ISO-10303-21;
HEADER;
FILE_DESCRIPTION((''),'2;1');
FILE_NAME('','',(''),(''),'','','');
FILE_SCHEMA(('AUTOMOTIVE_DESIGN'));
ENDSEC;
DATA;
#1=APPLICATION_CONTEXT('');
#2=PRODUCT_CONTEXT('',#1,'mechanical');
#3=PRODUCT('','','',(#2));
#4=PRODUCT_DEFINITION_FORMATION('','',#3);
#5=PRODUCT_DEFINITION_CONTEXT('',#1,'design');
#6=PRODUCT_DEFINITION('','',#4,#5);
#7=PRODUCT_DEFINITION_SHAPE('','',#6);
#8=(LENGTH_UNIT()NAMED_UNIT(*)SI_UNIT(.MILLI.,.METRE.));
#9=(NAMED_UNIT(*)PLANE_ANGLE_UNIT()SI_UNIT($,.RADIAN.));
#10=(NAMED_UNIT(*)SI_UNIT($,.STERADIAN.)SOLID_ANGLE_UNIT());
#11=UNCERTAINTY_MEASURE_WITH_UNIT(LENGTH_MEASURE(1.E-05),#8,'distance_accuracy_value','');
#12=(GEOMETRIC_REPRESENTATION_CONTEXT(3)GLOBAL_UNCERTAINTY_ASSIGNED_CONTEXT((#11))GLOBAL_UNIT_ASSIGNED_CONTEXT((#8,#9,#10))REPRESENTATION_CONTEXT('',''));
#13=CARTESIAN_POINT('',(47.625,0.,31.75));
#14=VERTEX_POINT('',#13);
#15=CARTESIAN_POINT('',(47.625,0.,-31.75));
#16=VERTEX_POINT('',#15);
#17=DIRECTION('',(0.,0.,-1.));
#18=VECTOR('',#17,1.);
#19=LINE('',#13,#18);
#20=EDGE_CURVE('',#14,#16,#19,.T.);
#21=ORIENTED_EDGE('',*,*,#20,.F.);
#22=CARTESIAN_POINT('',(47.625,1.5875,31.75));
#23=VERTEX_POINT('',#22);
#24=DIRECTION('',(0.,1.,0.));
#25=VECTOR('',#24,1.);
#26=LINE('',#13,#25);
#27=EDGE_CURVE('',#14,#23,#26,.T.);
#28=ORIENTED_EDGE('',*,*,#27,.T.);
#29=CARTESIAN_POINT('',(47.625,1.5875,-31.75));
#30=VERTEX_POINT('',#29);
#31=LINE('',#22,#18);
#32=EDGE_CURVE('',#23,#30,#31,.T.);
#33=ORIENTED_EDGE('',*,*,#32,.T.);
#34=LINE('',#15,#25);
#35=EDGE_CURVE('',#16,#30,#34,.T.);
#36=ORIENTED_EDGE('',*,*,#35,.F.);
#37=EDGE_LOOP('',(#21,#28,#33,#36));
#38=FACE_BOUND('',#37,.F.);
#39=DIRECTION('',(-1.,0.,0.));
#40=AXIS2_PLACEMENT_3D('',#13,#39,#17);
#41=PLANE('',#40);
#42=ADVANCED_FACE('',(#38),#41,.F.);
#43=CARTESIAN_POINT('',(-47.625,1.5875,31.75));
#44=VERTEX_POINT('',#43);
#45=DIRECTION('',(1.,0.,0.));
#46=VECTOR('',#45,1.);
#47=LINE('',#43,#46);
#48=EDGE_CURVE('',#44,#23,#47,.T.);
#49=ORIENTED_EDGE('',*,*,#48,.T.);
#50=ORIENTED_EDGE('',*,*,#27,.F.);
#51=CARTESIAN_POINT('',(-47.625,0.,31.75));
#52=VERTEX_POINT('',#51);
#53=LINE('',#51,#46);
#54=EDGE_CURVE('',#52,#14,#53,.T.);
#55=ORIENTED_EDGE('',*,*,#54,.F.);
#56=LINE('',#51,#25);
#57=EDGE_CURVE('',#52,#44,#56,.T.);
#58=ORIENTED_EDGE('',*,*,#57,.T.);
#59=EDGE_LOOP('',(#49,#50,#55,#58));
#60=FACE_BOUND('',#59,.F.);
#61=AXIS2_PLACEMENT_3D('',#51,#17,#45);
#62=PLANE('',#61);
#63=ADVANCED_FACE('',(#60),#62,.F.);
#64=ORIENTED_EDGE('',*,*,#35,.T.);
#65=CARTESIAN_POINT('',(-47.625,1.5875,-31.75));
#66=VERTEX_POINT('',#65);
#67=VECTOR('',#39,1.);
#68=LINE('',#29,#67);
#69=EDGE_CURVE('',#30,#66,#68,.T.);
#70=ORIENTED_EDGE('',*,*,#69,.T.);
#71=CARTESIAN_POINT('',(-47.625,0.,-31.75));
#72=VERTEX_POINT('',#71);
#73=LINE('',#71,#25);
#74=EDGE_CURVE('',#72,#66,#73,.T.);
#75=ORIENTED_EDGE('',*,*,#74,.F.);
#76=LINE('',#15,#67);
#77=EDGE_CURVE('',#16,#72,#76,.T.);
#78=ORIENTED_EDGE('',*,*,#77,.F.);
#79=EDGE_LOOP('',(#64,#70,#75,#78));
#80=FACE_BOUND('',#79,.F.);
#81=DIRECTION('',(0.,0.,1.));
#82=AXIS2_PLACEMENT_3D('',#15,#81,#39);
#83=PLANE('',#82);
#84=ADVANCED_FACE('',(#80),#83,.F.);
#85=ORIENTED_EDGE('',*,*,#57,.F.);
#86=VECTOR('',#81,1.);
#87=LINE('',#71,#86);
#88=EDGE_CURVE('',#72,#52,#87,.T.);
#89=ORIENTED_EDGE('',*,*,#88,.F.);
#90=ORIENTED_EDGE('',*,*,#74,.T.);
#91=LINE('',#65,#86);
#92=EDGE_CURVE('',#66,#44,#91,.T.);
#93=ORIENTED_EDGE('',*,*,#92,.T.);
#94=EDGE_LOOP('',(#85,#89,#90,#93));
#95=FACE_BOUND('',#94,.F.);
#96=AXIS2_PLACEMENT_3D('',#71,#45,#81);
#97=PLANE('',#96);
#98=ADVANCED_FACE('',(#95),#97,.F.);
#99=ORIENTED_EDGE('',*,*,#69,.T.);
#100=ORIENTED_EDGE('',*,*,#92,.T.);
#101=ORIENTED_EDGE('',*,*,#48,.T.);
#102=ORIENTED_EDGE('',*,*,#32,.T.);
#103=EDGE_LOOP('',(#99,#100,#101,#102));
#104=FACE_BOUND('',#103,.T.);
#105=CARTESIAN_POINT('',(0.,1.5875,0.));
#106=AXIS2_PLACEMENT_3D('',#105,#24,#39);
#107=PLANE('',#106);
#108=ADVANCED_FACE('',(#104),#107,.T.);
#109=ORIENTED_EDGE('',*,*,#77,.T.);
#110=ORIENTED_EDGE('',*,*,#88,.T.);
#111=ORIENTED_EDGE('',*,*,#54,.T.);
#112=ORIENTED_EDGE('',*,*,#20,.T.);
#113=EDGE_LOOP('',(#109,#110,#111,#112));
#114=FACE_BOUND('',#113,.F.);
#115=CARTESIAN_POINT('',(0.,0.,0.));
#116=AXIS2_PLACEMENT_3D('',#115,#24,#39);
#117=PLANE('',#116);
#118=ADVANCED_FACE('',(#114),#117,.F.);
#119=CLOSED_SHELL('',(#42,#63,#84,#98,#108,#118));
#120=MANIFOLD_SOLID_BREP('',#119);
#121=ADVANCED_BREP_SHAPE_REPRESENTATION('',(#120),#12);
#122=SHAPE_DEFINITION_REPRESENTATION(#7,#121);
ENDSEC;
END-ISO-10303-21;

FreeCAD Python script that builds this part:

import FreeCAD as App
import Part
import Sketcher
Q = App.Units.Quantity


def add_polygon(sketch, points):
    """Adds a closed chain of lines whose ends are joined by coincident constraints."""
    first, n = sketch.GeometryCount, len(points)
    for a, b in zip(points, points[1:] + points[:1]):
        sketch.addGeometry(Part.LineSegment(App.Vector(*a, 0), App.Vector(*b, 0)), False)
    for i in range(n):
        sketch.addConstraint(Sketcher.Constraint("Coincident", first + i, 2, first + (i + 1) % n, 1))

doc = App.newDocument("Part")
params = doc.addObject("Spreadsheet::Sheet", "Params")
for row, (alias, value) in enumerate([
    ("sketch1_height", "2.5 in"),
    ("sketch1_width", "3.75 in"),
    ("pad1_length", "0.0625 in"),
], start=1):
    params.set(f"A{row}", alias)
    params.set(f"B{row}", "=" + value)
    params.setAlias(f"B{row}", alias)

body = doc.addObject("PartDesign::Body", "Body")

# Sketch on XZ plane
sketch1 = body.newObject("Sketcher::SketchObject", "Sketch")
sketch1.AttachmentSupport = (doc.getObject("XZ_Plane"), [""])
sketch1.MapMode = "FlatFace"
add_polygon(sketch1, [(-48, -32), (-48, 32), (48, 32), (48, -32)])  # lines 0-3
sketch1.addConstraint([
    Sketcher.Constraint("Vertical", 0),
    Sketcher.Constraint("Horizontal", 1),
    Sketcher.Constraint("Vertical", 2),
    Sketcher.Constraint("Horizontal", 3),
    Sketcher.Constraint("Symmetric", 0, 2, 2, 2, -1, 1),
    Sketcher.Constraint("DistanceY", 0, 1, 0, 2, Q("2.5 in")),
    Sketcher.Constraint("DistanceX", 1, 1, 1, 2, Q("3.75 in")),
])
sketch1.setExpression("Constraints[9]", "Params.sketch1_height")
sketch1.setExpression("Constraints[10]", "Params.sketch1_width")
pad1 = body.newObject("PartDesign::Pad", "Pad")
pad1.Profile = sketch1
pad1.setExpression("Length", "Params.pad1_length")
pad1.Reversed = True

doc.recompute()
